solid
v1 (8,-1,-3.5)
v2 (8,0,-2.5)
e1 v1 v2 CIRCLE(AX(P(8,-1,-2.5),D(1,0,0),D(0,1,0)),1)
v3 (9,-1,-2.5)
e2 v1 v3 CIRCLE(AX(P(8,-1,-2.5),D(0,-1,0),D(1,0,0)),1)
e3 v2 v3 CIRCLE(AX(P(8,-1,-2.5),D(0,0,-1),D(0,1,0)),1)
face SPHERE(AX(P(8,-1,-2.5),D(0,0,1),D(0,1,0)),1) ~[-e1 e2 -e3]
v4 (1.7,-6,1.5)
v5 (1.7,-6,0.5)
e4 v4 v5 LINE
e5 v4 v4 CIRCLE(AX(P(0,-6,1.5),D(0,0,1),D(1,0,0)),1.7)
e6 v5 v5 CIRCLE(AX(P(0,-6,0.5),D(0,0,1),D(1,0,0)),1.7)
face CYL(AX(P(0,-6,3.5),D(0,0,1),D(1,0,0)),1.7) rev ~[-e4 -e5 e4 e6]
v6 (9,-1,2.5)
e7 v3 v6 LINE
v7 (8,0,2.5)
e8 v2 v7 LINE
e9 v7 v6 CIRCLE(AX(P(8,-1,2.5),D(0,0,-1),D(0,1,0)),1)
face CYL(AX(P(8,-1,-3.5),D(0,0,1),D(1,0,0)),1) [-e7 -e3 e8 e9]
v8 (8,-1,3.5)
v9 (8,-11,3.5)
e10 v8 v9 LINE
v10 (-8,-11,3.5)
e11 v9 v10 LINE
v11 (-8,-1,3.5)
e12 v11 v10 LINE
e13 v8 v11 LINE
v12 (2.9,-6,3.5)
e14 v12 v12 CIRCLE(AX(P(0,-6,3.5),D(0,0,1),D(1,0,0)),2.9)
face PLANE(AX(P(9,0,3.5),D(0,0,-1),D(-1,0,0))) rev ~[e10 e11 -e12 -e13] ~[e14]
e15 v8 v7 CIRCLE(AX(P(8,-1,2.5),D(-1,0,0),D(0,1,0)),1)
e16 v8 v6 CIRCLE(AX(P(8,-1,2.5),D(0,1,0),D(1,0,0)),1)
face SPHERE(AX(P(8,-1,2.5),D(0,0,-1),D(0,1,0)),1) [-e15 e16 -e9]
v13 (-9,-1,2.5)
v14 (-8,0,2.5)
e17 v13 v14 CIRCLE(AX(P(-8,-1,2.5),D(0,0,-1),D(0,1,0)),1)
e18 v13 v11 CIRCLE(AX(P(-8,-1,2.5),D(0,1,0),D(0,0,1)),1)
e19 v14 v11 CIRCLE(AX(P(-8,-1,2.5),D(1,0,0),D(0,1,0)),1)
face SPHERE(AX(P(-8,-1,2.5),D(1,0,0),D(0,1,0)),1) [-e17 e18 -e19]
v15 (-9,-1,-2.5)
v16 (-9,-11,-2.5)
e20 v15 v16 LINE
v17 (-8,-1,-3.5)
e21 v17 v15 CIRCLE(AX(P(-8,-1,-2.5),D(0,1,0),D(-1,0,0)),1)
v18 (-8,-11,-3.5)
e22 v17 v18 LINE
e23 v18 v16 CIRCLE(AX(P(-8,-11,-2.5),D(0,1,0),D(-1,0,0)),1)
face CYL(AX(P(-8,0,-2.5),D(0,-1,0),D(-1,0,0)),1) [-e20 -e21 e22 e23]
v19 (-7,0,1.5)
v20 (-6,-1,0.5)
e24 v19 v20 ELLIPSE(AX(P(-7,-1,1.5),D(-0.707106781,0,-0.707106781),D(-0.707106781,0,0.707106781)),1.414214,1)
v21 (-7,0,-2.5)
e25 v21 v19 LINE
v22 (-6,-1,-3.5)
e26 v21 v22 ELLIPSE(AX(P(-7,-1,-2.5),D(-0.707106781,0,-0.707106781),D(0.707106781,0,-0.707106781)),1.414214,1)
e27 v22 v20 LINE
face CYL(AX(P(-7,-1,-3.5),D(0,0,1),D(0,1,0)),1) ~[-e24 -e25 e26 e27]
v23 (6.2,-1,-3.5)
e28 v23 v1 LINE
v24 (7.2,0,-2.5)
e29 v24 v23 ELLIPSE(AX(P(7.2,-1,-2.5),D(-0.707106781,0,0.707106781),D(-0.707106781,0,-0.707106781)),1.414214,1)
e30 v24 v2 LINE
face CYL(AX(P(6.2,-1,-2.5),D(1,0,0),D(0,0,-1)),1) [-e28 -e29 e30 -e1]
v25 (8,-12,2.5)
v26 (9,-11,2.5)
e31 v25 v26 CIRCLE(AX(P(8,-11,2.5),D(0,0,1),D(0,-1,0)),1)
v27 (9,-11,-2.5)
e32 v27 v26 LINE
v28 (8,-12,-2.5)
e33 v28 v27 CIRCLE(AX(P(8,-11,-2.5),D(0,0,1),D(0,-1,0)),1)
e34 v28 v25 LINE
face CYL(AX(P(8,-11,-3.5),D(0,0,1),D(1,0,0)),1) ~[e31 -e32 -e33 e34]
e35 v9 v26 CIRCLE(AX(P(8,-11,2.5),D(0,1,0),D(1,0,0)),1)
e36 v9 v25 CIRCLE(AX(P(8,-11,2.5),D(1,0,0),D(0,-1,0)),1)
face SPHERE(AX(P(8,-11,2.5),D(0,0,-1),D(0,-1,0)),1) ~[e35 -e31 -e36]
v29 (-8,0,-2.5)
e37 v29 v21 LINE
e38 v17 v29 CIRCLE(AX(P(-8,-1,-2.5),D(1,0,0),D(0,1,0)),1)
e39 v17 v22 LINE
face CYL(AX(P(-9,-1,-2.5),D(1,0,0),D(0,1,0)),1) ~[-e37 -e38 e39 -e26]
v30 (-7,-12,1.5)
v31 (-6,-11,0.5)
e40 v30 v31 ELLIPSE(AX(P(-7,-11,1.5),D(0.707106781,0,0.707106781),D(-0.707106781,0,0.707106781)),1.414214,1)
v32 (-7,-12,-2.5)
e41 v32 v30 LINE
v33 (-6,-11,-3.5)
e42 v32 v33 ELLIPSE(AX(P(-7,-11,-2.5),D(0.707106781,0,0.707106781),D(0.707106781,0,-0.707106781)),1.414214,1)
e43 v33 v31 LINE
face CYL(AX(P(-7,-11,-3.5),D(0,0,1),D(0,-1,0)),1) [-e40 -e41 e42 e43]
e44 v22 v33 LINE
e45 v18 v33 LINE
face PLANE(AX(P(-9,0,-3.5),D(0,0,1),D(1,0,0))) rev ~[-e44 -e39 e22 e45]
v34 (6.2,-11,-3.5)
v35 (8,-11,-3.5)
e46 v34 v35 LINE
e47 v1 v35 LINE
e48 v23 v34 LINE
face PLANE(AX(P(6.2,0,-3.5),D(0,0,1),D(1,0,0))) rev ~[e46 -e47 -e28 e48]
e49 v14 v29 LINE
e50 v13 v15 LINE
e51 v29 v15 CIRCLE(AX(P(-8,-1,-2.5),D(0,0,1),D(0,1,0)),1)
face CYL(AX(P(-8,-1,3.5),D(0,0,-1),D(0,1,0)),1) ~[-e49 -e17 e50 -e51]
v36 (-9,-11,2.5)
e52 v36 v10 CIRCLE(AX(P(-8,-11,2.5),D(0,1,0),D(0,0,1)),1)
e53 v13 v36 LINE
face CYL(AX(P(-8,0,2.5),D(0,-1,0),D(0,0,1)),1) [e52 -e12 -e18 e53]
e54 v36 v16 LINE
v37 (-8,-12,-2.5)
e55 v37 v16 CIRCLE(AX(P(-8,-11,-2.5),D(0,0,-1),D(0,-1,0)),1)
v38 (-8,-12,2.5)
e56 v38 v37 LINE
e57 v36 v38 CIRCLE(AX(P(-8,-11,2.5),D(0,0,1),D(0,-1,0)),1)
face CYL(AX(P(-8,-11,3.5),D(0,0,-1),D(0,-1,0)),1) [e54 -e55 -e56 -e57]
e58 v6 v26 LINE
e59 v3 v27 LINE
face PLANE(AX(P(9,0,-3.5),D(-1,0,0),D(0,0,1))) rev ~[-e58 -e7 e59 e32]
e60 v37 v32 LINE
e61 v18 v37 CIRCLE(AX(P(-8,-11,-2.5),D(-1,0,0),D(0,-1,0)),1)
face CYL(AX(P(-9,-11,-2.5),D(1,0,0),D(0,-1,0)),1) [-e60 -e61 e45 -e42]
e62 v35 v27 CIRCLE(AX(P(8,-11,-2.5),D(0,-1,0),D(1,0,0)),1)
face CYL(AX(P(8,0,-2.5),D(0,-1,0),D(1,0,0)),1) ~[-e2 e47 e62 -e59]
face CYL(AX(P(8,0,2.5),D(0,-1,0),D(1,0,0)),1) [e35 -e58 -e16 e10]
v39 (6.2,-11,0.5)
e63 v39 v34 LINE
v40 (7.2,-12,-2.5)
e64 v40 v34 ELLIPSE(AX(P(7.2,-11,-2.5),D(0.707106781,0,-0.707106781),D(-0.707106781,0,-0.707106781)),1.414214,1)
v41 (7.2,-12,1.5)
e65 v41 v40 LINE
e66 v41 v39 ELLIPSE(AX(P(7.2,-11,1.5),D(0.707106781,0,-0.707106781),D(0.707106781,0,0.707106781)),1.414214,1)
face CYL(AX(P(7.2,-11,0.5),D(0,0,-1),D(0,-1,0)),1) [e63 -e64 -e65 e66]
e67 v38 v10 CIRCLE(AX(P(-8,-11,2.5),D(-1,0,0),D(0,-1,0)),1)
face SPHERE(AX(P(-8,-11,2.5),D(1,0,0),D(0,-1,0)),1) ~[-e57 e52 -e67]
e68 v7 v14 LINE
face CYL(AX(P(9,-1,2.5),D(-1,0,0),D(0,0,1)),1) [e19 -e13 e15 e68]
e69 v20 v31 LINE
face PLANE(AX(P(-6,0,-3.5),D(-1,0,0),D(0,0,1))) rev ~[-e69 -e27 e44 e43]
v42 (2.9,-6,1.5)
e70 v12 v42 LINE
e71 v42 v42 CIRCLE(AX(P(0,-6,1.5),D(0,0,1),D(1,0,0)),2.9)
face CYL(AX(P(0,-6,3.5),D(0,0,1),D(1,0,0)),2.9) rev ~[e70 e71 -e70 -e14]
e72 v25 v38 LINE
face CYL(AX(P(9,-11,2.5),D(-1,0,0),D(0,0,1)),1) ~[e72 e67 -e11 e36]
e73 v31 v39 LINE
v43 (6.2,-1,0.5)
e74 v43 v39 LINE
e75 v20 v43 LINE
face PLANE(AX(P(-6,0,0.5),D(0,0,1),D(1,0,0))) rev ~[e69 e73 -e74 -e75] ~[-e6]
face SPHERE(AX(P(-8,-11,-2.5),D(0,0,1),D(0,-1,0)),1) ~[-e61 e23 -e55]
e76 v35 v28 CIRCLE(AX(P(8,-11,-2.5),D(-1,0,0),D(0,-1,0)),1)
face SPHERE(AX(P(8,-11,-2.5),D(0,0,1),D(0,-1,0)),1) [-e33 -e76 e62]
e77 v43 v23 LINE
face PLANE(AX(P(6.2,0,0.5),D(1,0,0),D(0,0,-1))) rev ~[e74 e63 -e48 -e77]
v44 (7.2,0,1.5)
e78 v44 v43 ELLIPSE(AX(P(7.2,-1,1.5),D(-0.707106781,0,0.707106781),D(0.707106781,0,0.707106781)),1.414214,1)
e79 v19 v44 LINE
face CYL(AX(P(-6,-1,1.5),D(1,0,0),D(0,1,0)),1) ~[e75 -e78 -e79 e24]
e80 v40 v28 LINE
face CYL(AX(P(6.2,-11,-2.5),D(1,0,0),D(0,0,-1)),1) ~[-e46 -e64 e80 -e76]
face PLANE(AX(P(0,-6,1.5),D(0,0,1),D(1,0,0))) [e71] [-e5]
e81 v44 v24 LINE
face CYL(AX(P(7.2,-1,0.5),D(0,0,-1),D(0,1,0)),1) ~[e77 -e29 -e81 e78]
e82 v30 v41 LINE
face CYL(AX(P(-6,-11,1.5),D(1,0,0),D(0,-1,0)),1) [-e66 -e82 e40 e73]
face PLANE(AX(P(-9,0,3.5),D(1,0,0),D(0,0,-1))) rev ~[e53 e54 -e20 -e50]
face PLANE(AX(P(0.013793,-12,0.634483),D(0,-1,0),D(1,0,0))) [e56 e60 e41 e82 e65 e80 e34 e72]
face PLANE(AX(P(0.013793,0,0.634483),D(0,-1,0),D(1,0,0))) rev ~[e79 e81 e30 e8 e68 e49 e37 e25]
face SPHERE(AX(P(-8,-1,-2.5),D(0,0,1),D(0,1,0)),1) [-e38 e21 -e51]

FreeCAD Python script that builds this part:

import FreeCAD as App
import Part
import Sketcher


def edges_at(feature, points):
    """Names of the edges that pass closest to the given points."""
    edges = feature.Shape.Edges
    near = lambda p: min(range(len(edges)), key=lambda i: edges[i].distToShape(Part.Vertex(*p))[0])
    return sorted({f"Edge{near(p) + 1}" for p in points})


def add_polygon(sketch, points):
    """Adds a closed chain of lines whose ends are joined by coincident constraints."""
    first, n = sketch.GeometryCount, len(points)
    for a, b in zip(points, points[1:] + points[:1]):
        sketch.addGeometry(Part.LineSegment(App.Vector(*a, 0), App.Vector(*b, 0)), False)
    for i in range(n):
        sketch.addConstraint(Sketcher.Constraint("Coincident", first + i, 2, first + (i + 1) % n, 1))

doc = App.newDocument("Part")
body = doc.addObject("PartDesign::Body", "Body")

# Sketch on XZ plane
sketch1 = body.newObject("Sketcher::SketchObject", "Sketch")
sketch1.AttachmentSupport = (doc.getObject("XZ_Plane"), [""])
sketch1.MapMode = "FlatFace"
add_polygon(sketch1, [(9, -3.5), (9, 3.5), (-9, 3.5), (-9, -3.5), (-6, -3.5), (-6, 0.5), (6.2, 0.5), (6.2, -3.5)])  # lines 0-7
sketch1.addConstraint([
    Sketcher.Constraint("Vertical", 0),
    Sketcher.Constraint("Horizontal", 1),
    Sketcher.Constraint("Vertical", 2),
    Sketcher.Constraint("Horizontal", 3),
    Sketcher.Constraint("Vertical", 4),
    Sketcher.Constraint("Horizontal", 5),
    Sketcher.Constraint("Vertical", 6),
    Sketcher.Constraint("Horizontal", 7),
    Sketcher.Constraint("Symmetric", 0, 2, 2, 2, -1, 1),
    Sketcher.Constraint("Horizontal", 3, 2, 6, 2),
    Sketcher.Constraint("DistanceX", 1, 2, 1, 1, 18.0),
    Sketcher.Constraint("DistanceX", 3, 1, 3, 2, 3.0),
    Sketcher.Constraint("DistanceY", 0, 1, 0, 2, 7.0),
    Sketcher.Constraint("DistanceY", 4, 1, 4, 2, 4.0),
    Sketcher.Constraint("DistanceX", 5, 1, 5, 2, 12.2),
])
pad1 = body.newObject("PartDesign::Pad", "Pad")
pad1.Profile = sketch1
pad1.Length = 12

# Sketch on XY plane
sketch2 = body.newObject("Sketcher::SketchObject", "Sketch001")
sketch2.AttachmentSupport = (doc.getObject("XY_Plane"), [""])
sketch2.MapMode = "FlatFace"
sketch2.AttachmentOffset = App.Placement(App.Vector(0, 0, 3.5), App.Rotation())
sketch2.addGeometry(Part.Circle(App.Vector(0, -6, 0), App.Vector(0, 0, 1), 1.7), False)
sketch2.addConstraint([
    Sketcher.Constraint("PointOnObject", 0, 3, -2),
    Sketcher.Constraint("Diameter", 0, 3.4),
    Sketcher.Constraint("DistanceY", 0, 3, -1, 1, 6.0),
])
pocket1 = body.newObject("PartDesign::Pocket", "Pocket")
pocket1.Profile = sketch2
pocket1.Type = "ThroughAll"

# Sketch on XY plane
sketch3 = body.newObject("Sketcher::SketchObject", "Sketch002")
sketch3.AttachmentSupport = (doc.getObject("XY_Plane"), [""])
sketch3.MapMode = "FlatFace"
sketch3.AttachmentOffset = App.Placement(App.Vector(0, 0, 3.5), App.Rotation())
sketch3.addGeometry([
    Part.Circle(App.Vector(0, -6, 0), App.Vector(0, 0, 1), 2.9),
    Part.Circle(App.Vector(0, -6, 0), App.Vector(0, 0, 1), 1.7),
], False)
sketch3.addConstraint([
    Sketcher.Constraint("Coincident", 1, 3, 0, 3),
    Sketcher.Constraint("PointOnObject", 0, 3, -2),
    Sketcher.Constraint("Diameter", 0, 5.8),
    Sketcher.Constraint("Diameter", 1, 3.4),
    Sketcher.Constraint("DistanceY", 0, 3, -1, 1, 6.0),
])
pocket2 = body.newObject("PartDesign::Pocket", "Pocket001")
pocket2.Profile = sketch3
pocket2.Length = 2
doc.recompute()

fillet = body.newObject("PartDesign::Fillet", "Fillet")
fillet.Base = (pocket2, edges_at(pocket2, [
    (9, -12, 0),
    (0, -12, 3.5),
    (-9, -12, 0),
    (-7.5, -12, -3.5),
    (-6, -12, -1.5),
    (0.1, -12, 0.5),
    (6.2, -12, -1.5),
    (7.6, -12, -3.5),
    (9, 0, 0),
    (0, 0, 3.5),
    (-9, 0, 0),
    (-7.5, 0, -3.5),
    (-6, 0, -1.5),
    (0.1, 0, 0.5),
    (6.2, 0, -1.5),
    (7.6, 0, -3.5),
    (9, -6, -3.5),
    (-9, -6, -3.5),
    (-9, -6, 3.5),
    (9, -6, 3.5),
]))
fillet.Radius = 1

doc.recompute()
